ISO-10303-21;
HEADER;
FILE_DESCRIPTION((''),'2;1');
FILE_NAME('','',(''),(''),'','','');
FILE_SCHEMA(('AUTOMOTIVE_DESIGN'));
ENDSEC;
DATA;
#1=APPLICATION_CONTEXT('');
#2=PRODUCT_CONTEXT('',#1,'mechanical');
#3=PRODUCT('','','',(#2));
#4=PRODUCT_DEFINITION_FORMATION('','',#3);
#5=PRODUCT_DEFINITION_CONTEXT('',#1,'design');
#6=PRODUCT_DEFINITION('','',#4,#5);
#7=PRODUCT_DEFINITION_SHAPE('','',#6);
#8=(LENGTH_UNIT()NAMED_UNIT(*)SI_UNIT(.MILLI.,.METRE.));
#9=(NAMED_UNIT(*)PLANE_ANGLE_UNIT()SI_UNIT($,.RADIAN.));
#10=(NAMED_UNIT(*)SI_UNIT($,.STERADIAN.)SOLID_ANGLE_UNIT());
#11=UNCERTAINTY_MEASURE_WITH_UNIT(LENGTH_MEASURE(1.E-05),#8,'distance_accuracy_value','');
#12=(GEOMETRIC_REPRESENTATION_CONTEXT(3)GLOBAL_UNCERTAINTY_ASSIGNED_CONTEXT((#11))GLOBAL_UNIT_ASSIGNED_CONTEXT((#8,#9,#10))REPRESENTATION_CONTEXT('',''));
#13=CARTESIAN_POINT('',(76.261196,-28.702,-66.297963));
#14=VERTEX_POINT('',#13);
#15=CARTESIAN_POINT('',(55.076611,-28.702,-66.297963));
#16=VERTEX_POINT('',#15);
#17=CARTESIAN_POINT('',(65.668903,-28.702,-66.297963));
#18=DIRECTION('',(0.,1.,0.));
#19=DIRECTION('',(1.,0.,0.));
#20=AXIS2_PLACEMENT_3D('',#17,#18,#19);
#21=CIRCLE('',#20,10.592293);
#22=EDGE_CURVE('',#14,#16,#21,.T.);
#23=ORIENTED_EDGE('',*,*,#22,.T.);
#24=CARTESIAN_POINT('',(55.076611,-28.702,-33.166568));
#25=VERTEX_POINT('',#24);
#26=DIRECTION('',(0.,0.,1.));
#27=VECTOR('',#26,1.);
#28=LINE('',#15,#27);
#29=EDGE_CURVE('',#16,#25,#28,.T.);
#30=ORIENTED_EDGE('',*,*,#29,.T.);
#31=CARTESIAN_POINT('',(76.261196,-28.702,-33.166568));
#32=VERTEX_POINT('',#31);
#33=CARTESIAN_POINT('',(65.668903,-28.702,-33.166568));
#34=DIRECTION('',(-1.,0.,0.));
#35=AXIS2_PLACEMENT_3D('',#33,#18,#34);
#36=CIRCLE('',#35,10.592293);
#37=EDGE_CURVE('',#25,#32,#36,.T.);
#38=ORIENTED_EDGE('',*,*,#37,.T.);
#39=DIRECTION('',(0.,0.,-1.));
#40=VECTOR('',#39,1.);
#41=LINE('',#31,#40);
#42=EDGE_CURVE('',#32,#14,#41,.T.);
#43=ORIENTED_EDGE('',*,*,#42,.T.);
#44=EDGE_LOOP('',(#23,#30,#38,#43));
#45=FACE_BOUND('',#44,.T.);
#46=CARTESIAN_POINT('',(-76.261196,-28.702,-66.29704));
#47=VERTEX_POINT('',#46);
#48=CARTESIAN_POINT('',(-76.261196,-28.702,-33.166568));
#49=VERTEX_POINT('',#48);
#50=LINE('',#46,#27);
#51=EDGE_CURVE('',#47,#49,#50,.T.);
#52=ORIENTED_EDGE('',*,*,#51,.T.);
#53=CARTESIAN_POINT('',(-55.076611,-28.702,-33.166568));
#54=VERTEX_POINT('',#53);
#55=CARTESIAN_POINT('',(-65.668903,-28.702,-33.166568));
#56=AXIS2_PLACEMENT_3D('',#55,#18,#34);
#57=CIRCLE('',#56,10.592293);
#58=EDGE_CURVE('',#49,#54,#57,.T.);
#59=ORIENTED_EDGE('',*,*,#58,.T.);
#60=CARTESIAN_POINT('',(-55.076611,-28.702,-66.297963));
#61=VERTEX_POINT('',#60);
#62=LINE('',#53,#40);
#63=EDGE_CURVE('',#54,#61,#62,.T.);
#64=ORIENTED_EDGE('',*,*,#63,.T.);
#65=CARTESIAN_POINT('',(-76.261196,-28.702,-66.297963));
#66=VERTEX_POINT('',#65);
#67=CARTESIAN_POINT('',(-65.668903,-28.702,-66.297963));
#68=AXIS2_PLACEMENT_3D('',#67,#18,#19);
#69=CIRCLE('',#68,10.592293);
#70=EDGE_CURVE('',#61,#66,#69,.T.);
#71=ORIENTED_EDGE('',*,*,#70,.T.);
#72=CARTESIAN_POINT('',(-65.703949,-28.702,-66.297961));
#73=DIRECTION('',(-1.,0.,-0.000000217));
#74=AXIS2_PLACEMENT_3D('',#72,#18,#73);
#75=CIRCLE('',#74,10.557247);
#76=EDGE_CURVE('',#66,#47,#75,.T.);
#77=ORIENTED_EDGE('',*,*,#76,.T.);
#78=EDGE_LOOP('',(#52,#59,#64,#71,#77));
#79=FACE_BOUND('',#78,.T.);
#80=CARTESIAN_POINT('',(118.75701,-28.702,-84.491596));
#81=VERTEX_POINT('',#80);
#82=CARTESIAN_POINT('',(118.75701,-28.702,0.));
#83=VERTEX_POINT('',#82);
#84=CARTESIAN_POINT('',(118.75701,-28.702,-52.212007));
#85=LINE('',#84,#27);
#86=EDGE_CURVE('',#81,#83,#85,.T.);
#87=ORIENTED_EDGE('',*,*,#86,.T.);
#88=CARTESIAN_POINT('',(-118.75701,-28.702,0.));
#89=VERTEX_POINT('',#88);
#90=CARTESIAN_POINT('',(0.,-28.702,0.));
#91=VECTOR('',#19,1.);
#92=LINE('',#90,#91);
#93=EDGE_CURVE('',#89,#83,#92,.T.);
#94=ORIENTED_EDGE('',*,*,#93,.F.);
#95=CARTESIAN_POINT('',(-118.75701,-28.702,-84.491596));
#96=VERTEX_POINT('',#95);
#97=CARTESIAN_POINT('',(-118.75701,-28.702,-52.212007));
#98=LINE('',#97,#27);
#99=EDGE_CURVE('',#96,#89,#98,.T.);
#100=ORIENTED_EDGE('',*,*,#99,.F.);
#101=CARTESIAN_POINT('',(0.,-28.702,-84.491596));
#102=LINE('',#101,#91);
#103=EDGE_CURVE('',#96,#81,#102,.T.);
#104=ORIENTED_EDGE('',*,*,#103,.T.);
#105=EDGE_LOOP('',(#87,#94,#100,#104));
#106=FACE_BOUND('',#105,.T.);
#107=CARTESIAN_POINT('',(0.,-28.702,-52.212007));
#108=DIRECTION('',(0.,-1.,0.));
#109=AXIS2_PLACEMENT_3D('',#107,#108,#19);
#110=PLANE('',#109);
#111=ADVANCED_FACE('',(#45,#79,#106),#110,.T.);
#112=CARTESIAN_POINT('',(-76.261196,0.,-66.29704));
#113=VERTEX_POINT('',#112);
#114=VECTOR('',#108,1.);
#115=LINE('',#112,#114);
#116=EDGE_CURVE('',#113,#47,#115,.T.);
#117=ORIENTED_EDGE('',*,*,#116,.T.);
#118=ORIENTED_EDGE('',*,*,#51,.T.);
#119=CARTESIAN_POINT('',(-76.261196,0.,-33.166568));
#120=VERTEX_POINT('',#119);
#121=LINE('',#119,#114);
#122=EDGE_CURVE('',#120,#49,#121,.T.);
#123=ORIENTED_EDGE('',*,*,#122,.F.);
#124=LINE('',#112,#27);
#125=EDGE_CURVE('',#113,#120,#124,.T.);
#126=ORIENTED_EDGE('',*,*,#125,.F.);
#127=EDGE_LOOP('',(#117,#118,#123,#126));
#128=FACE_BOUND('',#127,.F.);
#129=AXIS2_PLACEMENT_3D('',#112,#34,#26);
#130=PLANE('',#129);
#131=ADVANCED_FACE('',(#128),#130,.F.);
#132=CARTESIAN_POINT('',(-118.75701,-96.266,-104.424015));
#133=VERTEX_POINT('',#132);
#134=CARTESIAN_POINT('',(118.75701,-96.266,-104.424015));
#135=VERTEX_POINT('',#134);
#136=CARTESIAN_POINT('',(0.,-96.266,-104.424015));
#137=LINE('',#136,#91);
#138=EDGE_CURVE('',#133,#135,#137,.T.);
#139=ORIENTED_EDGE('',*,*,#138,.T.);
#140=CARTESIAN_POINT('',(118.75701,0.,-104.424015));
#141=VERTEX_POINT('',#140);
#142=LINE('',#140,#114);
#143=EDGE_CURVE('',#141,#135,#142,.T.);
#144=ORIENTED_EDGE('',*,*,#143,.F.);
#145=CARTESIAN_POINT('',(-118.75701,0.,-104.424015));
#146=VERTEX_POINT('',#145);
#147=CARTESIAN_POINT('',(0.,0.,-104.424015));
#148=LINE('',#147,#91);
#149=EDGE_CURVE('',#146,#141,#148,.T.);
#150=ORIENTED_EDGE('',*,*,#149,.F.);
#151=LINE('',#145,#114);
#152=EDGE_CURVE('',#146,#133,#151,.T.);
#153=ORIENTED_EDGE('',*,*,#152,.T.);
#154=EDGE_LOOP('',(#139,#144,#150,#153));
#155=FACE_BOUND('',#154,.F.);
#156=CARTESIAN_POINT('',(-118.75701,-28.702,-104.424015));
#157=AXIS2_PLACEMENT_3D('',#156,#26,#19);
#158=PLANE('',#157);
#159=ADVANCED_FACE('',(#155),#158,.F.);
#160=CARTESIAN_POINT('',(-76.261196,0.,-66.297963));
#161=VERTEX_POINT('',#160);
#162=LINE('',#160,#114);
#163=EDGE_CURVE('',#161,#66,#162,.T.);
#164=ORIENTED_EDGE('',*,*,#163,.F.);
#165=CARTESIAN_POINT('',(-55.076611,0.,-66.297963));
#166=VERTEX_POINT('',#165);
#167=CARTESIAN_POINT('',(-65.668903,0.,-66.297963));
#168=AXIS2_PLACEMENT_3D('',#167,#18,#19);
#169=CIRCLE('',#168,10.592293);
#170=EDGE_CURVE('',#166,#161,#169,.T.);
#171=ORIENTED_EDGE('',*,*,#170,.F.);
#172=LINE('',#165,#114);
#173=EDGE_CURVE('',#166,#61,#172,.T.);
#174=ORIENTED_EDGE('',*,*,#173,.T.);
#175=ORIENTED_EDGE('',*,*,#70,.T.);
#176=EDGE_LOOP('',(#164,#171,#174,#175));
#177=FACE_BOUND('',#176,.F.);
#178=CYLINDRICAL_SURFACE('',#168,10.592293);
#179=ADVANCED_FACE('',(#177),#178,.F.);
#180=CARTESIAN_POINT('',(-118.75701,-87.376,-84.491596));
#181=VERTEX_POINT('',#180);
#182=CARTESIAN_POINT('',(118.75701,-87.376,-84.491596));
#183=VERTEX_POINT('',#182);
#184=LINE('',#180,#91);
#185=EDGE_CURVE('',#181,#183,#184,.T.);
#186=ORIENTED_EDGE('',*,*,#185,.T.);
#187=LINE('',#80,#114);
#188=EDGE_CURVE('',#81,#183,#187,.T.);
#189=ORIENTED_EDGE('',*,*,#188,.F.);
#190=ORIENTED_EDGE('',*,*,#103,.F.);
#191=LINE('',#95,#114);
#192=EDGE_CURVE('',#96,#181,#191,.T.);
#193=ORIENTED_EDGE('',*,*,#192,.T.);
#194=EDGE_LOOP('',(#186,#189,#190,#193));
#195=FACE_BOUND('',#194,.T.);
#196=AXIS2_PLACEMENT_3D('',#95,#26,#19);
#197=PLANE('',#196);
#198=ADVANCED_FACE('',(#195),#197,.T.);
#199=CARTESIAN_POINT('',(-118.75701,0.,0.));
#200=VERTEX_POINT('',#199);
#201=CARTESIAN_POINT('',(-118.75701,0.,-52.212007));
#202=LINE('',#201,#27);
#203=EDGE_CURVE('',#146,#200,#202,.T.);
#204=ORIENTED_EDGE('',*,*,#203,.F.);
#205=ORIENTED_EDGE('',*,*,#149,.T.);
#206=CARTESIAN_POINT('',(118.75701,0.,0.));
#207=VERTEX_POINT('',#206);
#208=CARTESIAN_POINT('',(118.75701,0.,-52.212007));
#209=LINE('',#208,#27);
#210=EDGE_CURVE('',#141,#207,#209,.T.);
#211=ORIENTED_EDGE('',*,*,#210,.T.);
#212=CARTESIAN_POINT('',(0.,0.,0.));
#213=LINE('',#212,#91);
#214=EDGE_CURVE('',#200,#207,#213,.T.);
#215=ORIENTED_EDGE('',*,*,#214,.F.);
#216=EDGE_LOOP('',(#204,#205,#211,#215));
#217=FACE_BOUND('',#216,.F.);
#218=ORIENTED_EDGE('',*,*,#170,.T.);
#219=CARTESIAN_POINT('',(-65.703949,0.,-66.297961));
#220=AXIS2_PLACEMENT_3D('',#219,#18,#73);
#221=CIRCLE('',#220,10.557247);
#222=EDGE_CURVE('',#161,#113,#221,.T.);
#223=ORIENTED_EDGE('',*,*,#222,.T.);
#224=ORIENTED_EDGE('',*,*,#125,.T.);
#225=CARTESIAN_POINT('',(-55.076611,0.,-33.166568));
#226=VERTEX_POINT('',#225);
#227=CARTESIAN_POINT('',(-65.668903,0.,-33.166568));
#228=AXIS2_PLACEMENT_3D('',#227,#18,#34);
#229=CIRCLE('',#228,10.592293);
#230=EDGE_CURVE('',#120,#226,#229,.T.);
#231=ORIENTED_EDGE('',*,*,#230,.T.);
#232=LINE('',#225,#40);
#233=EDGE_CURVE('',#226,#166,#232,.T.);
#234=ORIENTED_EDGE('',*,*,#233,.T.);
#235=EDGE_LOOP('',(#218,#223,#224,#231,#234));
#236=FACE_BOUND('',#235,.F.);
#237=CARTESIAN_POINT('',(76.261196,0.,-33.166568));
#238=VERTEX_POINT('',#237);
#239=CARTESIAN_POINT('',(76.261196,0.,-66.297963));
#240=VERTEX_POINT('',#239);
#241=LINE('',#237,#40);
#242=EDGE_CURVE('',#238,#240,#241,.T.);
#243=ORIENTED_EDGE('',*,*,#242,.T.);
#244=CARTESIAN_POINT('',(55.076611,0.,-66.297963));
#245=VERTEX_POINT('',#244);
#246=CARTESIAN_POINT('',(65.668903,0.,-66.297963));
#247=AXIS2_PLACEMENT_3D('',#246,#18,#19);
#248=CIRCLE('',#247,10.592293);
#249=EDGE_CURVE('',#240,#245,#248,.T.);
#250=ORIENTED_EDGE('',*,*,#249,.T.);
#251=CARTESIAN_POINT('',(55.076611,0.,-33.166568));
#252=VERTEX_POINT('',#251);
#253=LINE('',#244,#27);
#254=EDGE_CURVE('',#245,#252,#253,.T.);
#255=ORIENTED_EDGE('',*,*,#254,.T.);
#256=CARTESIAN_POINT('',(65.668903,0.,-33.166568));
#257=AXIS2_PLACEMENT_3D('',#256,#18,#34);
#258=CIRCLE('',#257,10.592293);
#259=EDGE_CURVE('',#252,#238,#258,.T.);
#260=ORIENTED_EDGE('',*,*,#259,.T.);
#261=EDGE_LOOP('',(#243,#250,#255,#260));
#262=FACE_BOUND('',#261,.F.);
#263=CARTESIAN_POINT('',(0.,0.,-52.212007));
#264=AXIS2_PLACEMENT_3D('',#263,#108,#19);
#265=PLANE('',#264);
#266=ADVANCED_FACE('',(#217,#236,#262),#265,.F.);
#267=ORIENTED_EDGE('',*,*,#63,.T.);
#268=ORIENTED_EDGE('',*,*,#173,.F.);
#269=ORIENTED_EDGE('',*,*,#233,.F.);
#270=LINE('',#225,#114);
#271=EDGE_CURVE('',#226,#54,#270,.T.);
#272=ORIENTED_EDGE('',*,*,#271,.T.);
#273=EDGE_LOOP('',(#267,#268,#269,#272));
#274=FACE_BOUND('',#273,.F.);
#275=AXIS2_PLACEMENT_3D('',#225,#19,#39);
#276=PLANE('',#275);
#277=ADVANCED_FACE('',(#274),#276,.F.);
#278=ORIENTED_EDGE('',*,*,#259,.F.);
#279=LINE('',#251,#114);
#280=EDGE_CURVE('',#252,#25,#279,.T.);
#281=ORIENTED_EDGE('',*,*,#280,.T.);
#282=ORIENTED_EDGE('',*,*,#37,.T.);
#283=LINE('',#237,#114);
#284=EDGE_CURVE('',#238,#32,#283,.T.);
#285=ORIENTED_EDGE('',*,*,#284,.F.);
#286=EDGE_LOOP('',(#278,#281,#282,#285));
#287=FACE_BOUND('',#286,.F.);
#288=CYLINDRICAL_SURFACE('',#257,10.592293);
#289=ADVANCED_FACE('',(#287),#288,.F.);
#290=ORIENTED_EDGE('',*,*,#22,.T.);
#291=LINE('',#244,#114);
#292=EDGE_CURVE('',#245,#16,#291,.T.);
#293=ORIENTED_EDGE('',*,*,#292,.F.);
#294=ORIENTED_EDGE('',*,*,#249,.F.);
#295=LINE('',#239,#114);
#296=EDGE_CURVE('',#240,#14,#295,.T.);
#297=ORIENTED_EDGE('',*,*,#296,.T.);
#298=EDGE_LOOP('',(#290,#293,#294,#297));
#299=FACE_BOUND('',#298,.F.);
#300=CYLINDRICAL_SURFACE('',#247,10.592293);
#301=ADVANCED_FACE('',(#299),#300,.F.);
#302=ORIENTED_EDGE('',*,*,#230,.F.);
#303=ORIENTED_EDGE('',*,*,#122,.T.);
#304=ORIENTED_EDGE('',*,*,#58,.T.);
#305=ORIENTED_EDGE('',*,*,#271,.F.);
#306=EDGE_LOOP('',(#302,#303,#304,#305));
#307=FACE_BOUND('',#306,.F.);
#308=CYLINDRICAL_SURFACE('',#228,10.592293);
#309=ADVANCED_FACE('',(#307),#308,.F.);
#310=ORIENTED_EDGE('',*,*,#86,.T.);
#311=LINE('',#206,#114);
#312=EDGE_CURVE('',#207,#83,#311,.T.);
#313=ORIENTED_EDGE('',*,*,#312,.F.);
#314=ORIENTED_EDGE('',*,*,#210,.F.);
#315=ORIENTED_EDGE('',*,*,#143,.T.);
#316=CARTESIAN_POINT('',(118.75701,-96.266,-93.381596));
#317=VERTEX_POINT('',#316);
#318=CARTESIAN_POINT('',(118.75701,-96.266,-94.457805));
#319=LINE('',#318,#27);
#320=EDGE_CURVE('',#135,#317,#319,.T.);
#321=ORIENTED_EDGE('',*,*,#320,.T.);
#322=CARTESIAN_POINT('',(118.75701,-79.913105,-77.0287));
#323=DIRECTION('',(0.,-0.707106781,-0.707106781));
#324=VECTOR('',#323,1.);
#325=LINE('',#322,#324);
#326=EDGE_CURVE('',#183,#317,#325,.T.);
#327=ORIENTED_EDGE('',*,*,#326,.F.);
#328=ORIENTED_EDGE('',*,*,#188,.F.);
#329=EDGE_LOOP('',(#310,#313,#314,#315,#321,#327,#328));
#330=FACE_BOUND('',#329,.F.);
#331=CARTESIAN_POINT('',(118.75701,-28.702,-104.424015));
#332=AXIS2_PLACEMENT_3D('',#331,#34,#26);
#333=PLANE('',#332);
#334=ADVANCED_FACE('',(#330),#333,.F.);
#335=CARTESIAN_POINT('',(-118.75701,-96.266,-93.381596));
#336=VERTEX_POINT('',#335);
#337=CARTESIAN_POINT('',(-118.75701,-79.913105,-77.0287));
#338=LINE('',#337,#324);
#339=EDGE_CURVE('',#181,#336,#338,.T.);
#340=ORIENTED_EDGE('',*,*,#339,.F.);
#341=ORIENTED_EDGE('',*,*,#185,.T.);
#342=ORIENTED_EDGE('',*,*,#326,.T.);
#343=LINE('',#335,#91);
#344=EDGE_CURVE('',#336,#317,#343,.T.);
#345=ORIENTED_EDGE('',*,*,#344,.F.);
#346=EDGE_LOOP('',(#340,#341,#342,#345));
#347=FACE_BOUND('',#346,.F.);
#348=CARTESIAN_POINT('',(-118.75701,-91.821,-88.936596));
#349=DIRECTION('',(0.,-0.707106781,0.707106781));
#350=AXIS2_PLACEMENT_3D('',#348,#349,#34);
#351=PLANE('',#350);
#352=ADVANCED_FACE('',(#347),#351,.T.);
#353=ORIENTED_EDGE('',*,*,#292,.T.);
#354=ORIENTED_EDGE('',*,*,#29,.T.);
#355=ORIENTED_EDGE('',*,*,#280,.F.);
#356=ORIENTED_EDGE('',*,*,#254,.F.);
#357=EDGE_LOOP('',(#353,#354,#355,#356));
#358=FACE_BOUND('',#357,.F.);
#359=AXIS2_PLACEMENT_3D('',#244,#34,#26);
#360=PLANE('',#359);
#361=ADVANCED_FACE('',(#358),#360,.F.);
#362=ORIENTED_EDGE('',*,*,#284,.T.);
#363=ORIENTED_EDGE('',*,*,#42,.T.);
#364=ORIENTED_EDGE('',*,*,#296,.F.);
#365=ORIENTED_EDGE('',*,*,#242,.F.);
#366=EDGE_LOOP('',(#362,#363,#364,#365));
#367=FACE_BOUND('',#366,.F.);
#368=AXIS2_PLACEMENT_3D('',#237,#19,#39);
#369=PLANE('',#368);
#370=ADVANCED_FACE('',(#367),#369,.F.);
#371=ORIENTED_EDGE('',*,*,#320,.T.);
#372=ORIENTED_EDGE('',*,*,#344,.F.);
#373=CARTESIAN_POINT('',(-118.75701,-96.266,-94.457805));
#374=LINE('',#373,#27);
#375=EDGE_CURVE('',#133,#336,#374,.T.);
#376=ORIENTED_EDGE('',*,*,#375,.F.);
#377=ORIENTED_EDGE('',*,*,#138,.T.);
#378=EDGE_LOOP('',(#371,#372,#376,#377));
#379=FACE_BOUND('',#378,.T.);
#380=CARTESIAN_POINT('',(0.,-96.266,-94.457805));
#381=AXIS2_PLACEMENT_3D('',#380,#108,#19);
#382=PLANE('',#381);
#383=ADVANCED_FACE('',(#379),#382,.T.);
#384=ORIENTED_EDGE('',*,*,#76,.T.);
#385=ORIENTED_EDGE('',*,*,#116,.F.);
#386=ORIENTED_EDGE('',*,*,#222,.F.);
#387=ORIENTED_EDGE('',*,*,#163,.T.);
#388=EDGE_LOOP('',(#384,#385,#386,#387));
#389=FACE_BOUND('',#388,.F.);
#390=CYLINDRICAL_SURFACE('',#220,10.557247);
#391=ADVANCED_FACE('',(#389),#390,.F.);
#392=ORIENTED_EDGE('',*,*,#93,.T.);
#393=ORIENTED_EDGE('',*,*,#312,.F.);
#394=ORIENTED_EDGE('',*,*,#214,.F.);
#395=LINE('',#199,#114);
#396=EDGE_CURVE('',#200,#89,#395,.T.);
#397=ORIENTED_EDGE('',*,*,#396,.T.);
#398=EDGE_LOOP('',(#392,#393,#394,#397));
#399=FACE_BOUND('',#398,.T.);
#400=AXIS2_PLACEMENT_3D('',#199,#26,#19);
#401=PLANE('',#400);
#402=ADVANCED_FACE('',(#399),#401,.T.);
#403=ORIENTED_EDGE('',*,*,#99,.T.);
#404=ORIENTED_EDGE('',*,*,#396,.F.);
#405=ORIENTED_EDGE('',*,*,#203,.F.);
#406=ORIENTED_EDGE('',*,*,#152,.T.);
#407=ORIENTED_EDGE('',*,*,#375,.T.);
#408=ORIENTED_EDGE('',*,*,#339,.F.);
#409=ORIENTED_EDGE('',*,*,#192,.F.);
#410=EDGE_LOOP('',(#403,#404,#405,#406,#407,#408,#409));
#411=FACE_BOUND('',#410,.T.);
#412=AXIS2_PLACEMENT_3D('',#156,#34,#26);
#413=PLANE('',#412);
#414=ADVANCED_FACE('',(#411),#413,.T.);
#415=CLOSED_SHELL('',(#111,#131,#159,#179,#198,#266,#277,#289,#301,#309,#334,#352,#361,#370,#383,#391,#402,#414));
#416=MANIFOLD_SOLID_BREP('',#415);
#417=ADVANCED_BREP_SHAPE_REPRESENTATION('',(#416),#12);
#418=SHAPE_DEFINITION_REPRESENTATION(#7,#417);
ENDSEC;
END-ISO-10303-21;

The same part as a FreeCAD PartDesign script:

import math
import FreeCAD as App
import Part
import Sketcher

V = App.Vector
Q = App.Units.Quantity


def edges_at(feature, points):
    """Names of the edges that pass closest to the given points."""
    edges = feature.Shape.Edges
    near = lambda p: min(range(len(edges)), key=lambda i: edges[i].distToShape(Part.Vertex(*p))[0])
    return sorted({f"Edge{near(p) + 1}" for p in points})

doc = App.newDocument("Part")
params = doc.addObject("Spreadsheet::Sheet", "Params")
for row, (alias, value) in enumerate([
    ("pad1_length", "1.13 in"),
    ("pad2_length", "2.66 in"),
    ("chamfer_size", "0.35 in"),
    ("chamfer_size2", "0.35 in"),
], start=1):
    params.set(f"A{row}", alias)
    params.set(f"B{row}", "=" + value)
    params.setAlias(f"B{row}", alias)

body = doc.addObject("PartDesign::Body", "Body")

# Sketch on XZ plane
sketch1 = doc.addObject("Sketcher::SketchObject", "Sketch")
body.addObject(sketch1)
sketch1.AttachmentSupport = (doc.XZ_Plane, [""])
sketch1.MapMode = "FlatFace"
sketch1.addGeometry(Part.LineSegment(V(-118.75701, 0, 0), V(-118.75701, -104.424015, 0)), False)
sketch1.addGeometry(Part.LineSegment(V(-118.75701, -104.424015, 0), V(118.75701, -104.424015, 0)), False)
sketch1.addGeometry(Part.LineSegment(V(118.75701, -104.424015, 0), V(118.75701, 0, 0)), False)
sketch1.addGeometry(Part.LineSegment(V(118.75701, 0, 0), V(-118.75701, 0, 0)), False)
sketch1.addGeometry(Part.LineSegment(V(-76.261196, -66.29704, 0), V(-76.261196, -33.166568, 0)), False)
sketch1.addGeometry(Part.ArcOfCircle(Part.Circle(V(-65.668903, -33.166568, 0), V(0, 0, 1), 10.592293), math.radians(0), math.radians(180)), False)
sketch1.addGeometry(Part.LineSegment(V(-55.076611, -33.166568, 0), V(-55.076611, -66.297963, 0)), False)
sketch1.addGeometry(Part.ArcOfCircle(Part.Circle(V(-65.668903, -66.297963, 0), V(0, 0, 1), 10.592293), math.radians(180), math.radians(360)), False)
sketch1.addGeometry(Part.ArcOfCircle(Part.Circle(V(-65.703949, -66.297961, 0), V(0, 0, 1), 10.557247), math.radians(179.995), math.radians(180.000012)), False)
sketch1.addGeometry(Part.ArcOfCircle(Part.Circle(V(65.668903, -66.297963, 0), V(0, 0, 1), 10.592293), math.radians(180), math.radians(360)), False)
sketch1.addGeometry(Part.LineSegment(V(55.076611, -66.297963, 0), V(55.076611, -33.166568, 0)), False)
sketch1.addGeometry(Part.ArcOfCircle(Part.Circle(V(65.668903, -33.166568, 0), V(0, 0, 1), 10.592293), math.radians(0), math.radians(180)), False)
sketch1.addGeometry(Part.LineSegment(V(76.261196, -33.166568, 0), V(76.261196, -66.297963, 0)), False)
sketch1.addConstraint(Sketcher.Constraint("Coincident", 0, 2, 1, 1))
sketch1.addConstraint(Sketcher.Constraint("Coincident", 1, 2, 2, 1))
sketch1.addConstraint(Sketcher.Constraint("Coincident", 2, 2, 3, 1))
sketch1.addConstraint(Sketcher.Constraint("Coincident", 3, 2, 0, 1))
sketch1.addConstraint(Sketcher.Constraint("Tangent", 4, 2, 5, 2))
sketch1.addConstraint(Sketcher.Constraint("Tangent", 5, 1, 6, 1))
sketch1.addConstraint(Sketcher.Constraint("Tangent", 6, 2, 7, 2))
sketch1.addConstraint(Sketcher.Constraint("Tangent", 7, 1, 8, 2))
sketch1.addConstraint(Sketcher.Constraint("Coincident", 8, 1, 4, 1))
sketch1.addConstraint(Sketcher.Constraint("Tangent", 9, 1, 10, 1))
sketch1.addConstraint(Sketcher.Constraint("Tangent", 10, 2, 11, 2))
sketch1.addConstraint(Sketcher.Constraint("Tangent", 11, 1, 12, 1))
sketch1.addConstraint(Sketcher.Constraint("Tangent", 12, 2, 9, 2))
sketch1.addConstraint(Sketcher.Constraint("Vertical", 0))
sketch1.addConstraint(Sketcher.Constraint("Horizontal", 1))
sketch1.addConstraint(Sketcher.Constraint("Vertical", 2))
sketch1.addConstraint(Sketcher.Constraint("Horizontal", 3))
sketch1.addConstraint(Sketcher.Constraint("Vertical", 4))
sketch1.addConstraint(Sketcher.Constraint("Vertical", 6))
sketch1.addConstraint(Sketcher.Constraint("Vertical", 10))
sketch1.addConstraint(Sketcher.Constraint("Vertical", 12))
sketch1.addConstraint(Sketcher.Constraint("Equal", 7, 9))
sketch1.addConstraint(Sketcher.Constraint("Symmetric", 2, 2, 3, 2, -1, 1))
sketch1.addConstraint(Sketcher.Constraint("Symmetric", 7, 3, 9, 3, -2))
sketch1.addConstraint(Sketcher.Constraint("Horizontal", 5, 3, 11, 3))
sketch1.addConstraint(Sketcher.Constraint("Horizontal", 6, 2, 7, 1))
sketch1.addConstraint(Sketcher.Constraint("Radius", 5, Q("10.592293 mm")))
sketch1.addConstraint(Sketcher.Constraint("Radius", 8, Q("10.557247 mm")))
sketch1.addConstraint(Sketcher.Constraint("DistanceX", 1, 1, 1, 2, Q("237.514019 mm")))
sketch1.addConstraint(Sketcher.Constraint("DistanceY", 4, 1, 4, 2, Q("33.130472 mm")))
sketch1.addConstraint(Sketcher.Constraint("DistanceX", 3, 2, 5, 1, Q("63.680399 mm")))
sketch1.addConstraint(Sketcher.Constraint("DistanceY", 0, 2, 0, 1, Q("104.424015 mm")))
sketch1.addConstraint(Sketcher.Constraint("DistanceY", 6, 2, 6, 1, Q("33.131395 mm")))
sketch1.addConstraint(Sketcher.Constraint("DistanceY", 8, 3, -1, 1, Q("66.297961 mm")))
pad1 = doc.addObject("PartDesign::Pad", "Pad")
body.addObject(pad1)
pad1.Profile = sketch1
pad1.setExpression("Length", "Params.pad1_length")

# Sketch on XZ plane
sketch2 = doc.addObject("Sketcher::SketchObject", "Sketch001")
body.addObject(sketch2)
sketch2.AttachmentSupport = (doc.XZ_Plane, [""])
sketch2.MapMode = "FlatFace"
sketch2.AttachmentOffset = App.Placement(V(0, 0, 1.13 * 25.4), App.Rotation())
sketch2.addGeometry(Part.LineSegment(V(-118.75701, -84.491596, 0), V(-118.75701, -104.424015, 0)), False)
sketch2.addGeometry(Part.LineSegment(V(-118.75701, -104.424015, 0), V(118.75701, -104.424015, 0)), False)
sketch2.addGeometry(Part.LineSegment(V(118.75701, -104.424015, 0), V(118.75701, -84.491596, 0)), False)
sketch2.addGeometry(Part.LineSegment(V(118.75701, -84.491596, 0), V(-118.75701, -84.491596, 0)), False)
sketch2.addConstraint(Sketcher.Constraint("Coincident", 0, 2, 1, 1))
sketch2.addConstraint(Sketcher.Constraint("Coincident", 1, 2, 2, 1))
sketch2.addConstraint(Sketcher.Constraint("Coincident", 2, 2, 3, 1))
sketch2.addConstraint(Sketcher.Constraint("Coincident", 3, 2, 0, 1))
sketch2.addConstraint(Sketcher.Constraint("Vertical", 0))
sketch2.addConstraint(Sketcher.Constraint("Horizontal", 1))
sketch2.addConstraint(Sketcher.Constraint("Vertical", 2))
sketch2.addConstraint(Sketcher.Constraint("Horizontal", 3))
sketch2.addConstraint(Sketcher.Constraint("DistanceX", 1, 1, 1, 2, Q("237.514019 mm")))
sketch2.addConstraint(Sketcher.Constraint("DistanceY", 0, 2, 0, 1, Q("19.932419 mm")))
sketch2.addConstraint(Sketcher.Constraint("DistanceX", 0, 2, -1, 1, Q("118.75701 mm")))
sketch2.addConstraint(Sketcher.Constraint("DistanceY", 0, 2, -1, 1, Q("104.424015 mm")))
pad2 = doc.addObject("PartDesign::Pad", "Pad001")
body.addObject(pad2)
pad2.Profile = sketch2
pad2.setExpression("Length", "Params.pad2_length")
doc.recompute()

chamfer = doc.addObject("PartDesign::Chamfer", "Chamfer")
body.addObject(chamfer)
chamfer.Base = (pad2, edges_at(pad2, [(0, -96.266, -84.492)]))
chamfer.ChamferType = "Two distances"
chamfer.setExpression("Size", "Params.chamfer_size")
chamfer.setExpression("Size2", "Params.chamfer_size2")

doc.recompute()
